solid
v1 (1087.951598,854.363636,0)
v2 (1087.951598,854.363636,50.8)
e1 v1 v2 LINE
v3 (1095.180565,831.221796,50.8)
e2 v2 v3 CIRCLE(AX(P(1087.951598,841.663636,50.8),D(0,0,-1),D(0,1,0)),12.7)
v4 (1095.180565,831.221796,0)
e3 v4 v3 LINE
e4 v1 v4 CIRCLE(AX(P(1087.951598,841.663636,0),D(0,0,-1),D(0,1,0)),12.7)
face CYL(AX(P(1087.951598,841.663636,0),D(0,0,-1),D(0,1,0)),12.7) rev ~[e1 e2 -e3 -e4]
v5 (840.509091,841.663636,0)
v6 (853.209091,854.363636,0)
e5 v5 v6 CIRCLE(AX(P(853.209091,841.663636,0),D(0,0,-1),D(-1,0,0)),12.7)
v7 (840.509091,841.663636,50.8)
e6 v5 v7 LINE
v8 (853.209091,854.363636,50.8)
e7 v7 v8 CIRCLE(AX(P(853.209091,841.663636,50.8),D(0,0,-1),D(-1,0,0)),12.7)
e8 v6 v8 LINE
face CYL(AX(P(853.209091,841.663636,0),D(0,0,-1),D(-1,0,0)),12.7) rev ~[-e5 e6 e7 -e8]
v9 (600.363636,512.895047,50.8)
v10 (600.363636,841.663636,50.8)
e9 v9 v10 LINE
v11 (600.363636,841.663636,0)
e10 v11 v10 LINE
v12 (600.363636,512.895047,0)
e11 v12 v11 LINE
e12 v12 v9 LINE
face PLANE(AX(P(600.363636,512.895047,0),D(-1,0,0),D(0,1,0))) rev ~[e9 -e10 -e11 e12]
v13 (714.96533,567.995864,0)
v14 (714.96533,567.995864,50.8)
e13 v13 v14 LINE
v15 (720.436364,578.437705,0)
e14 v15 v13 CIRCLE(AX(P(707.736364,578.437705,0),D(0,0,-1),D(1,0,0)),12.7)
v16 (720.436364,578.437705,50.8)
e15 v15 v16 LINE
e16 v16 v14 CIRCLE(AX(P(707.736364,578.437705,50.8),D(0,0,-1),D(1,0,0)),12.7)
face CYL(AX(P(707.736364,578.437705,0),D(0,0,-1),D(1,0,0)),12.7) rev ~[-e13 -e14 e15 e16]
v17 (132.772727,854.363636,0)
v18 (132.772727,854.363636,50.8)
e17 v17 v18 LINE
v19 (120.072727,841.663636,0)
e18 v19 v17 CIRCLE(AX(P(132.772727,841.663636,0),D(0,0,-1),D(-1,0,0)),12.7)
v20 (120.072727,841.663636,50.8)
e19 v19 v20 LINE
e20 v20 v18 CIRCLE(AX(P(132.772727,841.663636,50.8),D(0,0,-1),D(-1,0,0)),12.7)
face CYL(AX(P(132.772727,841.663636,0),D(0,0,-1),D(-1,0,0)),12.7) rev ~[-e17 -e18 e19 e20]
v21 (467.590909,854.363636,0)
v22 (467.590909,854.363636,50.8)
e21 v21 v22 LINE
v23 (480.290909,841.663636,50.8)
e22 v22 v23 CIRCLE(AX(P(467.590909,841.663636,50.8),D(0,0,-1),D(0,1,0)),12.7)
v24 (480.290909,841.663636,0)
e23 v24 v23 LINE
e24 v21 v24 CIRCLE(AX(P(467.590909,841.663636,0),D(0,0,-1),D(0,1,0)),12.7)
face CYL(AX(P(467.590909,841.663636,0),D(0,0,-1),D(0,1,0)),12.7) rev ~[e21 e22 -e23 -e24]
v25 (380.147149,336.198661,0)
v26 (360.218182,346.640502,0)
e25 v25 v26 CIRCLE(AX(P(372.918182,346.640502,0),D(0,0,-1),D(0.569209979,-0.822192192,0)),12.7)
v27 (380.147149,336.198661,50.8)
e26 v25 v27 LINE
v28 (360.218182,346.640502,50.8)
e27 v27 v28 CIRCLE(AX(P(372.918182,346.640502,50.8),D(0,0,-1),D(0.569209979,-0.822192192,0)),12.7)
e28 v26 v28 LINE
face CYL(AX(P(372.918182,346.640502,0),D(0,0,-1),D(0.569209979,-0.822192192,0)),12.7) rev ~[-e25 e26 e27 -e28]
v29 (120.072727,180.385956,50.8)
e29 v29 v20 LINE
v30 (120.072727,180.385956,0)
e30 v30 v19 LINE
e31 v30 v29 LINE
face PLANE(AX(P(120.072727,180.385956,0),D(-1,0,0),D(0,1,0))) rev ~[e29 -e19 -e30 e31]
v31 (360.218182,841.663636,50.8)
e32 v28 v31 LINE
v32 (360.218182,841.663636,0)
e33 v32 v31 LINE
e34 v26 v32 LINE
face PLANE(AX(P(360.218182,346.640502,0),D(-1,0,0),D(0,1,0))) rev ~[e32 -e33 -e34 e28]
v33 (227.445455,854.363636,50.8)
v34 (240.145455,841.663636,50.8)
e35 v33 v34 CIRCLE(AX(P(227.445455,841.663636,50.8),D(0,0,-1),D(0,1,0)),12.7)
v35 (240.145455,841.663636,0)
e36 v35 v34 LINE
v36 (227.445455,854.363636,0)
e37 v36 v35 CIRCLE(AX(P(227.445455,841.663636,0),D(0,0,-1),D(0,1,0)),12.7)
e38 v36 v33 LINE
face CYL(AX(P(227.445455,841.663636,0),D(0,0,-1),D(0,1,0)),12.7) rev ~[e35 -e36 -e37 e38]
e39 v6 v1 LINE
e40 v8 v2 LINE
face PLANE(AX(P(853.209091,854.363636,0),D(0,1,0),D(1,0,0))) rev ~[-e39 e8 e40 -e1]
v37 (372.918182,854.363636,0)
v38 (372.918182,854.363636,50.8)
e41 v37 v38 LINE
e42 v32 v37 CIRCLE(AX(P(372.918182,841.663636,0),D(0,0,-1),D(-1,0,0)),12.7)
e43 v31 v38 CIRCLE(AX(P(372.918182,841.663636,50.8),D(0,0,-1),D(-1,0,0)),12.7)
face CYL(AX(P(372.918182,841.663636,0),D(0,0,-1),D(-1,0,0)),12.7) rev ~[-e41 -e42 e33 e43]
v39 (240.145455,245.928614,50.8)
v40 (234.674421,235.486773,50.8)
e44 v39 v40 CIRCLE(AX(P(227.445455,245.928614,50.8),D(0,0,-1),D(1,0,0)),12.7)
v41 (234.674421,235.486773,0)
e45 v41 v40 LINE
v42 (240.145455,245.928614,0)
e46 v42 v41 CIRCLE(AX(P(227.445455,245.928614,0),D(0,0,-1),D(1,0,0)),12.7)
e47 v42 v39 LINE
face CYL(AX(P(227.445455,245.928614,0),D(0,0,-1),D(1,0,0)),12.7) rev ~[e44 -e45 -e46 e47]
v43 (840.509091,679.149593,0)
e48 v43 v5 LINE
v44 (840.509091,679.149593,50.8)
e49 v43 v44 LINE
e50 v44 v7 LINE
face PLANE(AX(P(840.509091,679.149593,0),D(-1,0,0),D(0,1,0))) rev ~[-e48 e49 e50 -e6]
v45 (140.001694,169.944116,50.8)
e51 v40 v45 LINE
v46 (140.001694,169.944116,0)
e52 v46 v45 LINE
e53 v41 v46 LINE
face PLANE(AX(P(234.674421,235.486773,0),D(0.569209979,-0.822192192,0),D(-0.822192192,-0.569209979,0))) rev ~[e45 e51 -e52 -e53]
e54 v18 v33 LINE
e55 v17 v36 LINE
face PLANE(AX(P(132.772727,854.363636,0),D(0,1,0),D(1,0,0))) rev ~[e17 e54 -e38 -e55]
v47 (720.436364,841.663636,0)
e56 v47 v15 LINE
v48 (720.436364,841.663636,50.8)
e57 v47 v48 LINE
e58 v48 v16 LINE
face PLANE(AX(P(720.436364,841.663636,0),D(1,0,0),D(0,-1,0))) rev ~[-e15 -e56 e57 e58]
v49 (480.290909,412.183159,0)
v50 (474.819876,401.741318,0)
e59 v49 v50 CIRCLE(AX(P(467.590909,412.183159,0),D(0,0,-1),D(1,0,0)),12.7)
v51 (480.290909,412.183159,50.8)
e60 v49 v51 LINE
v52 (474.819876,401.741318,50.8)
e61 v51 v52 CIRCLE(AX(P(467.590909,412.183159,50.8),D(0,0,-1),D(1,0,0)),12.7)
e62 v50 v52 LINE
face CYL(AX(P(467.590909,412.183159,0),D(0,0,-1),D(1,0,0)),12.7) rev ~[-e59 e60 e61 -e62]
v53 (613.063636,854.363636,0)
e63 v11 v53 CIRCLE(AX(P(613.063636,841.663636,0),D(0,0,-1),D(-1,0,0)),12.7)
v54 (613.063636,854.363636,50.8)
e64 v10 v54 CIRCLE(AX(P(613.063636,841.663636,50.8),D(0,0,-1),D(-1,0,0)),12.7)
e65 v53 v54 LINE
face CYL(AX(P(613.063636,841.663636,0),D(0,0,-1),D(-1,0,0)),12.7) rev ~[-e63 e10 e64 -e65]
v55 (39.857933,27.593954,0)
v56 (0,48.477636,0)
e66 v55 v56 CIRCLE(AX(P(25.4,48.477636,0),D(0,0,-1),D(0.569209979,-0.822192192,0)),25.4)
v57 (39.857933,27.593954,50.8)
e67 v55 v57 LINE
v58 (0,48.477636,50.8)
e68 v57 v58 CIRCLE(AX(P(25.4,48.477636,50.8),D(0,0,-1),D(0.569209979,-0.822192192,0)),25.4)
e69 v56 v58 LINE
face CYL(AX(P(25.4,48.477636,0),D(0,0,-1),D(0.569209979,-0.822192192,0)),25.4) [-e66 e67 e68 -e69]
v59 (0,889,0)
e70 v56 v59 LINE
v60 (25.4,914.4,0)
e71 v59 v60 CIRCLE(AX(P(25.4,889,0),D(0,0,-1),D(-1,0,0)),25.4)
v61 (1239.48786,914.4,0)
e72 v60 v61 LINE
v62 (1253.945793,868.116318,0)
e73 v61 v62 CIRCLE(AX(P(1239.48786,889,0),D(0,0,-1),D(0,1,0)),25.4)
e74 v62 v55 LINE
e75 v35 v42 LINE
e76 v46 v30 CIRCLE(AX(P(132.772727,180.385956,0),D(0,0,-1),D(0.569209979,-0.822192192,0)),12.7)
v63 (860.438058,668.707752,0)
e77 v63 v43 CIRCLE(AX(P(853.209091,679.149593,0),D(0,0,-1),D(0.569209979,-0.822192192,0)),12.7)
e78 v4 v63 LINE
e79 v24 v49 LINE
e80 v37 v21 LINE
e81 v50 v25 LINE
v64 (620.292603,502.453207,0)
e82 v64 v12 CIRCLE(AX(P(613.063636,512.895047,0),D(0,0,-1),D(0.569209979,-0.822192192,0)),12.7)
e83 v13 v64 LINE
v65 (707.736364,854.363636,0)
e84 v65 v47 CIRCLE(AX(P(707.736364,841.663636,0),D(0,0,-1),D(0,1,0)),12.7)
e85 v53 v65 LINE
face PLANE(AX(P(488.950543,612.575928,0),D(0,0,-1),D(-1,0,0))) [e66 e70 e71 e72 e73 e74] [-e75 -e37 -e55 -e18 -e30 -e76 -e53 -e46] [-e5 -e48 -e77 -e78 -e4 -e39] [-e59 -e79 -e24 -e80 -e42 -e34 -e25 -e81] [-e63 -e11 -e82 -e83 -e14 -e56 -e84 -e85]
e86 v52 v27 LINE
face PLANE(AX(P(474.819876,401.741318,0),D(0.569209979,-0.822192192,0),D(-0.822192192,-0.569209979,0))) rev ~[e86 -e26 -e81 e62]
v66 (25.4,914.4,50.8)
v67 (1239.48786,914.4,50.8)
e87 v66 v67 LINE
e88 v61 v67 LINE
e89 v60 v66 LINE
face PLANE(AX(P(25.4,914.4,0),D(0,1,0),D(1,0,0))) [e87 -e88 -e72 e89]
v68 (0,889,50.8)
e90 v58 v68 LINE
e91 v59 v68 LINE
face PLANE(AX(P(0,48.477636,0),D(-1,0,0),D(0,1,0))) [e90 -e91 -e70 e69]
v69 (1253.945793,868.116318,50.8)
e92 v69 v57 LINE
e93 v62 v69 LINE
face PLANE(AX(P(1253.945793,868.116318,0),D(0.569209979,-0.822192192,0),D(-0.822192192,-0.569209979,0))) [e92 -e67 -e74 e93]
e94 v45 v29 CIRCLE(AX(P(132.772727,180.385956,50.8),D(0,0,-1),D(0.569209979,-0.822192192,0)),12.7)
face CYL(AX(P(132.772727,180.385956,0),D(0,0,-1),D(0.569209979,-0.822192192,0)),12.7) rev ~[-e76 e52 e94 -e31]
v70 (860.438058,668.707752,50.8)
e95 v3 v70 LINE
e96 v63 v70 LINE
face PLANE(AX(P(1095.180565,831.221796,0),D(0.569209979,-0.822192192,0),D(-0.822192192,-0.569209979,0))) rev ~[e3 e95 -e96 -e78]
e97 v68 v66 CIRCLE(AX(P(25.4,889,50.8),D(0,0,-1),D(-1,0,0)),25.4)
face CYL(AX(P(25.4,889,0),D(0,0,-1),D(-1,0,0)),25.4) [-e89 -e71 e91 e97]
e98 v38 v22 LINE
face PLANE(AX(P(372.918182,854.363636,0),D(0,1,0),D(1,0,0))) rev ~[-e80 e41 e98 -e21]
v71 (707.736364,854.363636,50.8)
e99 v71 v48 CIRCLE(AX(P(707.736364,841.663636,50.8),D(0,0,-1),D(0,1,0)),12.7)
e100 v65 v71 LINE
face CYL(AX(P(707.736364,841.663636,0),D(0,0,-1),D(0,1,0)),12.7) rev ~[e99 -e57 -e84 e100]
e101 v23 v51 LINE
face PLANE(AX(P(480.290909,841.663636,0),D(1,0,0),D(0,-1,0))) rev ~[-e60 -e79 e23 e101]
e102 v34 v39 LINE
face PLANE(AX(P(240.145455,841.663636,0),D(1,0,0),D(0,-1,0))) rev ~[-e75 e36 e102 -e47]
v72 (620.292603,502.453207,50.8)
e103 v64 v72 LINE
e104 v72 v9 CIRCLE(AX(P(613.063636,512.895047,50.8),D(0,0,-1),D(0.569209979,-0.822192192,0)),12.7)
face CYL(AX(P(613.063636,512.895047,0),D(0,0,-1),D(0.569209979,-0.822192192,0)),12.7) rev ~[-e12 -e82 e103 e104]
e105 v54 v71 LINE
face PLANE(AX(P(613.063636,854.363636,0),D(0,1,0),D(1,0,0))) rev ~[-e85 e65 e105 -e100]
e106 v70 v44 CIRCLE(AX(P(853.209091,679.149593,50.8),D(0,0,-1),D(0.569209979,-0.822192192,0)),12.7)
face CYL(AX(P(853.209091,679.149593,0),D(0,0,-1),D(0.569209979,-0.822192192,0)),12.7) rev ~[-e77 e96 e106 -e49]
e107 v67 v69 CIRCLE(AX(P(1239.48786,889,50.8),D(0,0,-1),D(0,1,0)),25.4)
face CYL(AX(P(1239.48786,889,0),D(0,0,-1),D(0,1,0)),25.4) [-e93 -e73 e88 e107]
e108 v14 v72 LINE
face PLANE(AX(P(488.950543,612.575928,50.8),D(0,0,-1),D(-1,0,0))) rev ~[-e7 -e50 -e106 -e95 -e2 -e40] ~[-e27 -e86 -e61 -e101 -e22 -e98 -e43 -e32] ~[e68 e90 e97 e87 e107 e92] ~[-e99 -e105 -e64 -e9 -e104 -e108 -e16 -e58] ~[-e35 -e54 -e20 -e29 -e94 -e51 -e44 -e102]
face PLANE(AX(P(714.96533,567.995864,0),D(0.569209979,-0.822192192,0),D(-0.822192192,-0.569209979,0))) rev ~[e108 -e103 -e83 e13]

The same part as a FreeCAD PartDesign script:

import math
import FreeCAD as App
import Part
import Sketcher
from FreeCAD import Vector
Q = App.Units.Quantity

doc = App.newDocument("Part")
body = doc.addObject("PartDesign::Body", "Body")

# Sketch on XY plane
sketch1 = body.newObject("Sketcher::SketchObject", "Sketch")
sketch1.AttachmentSupport = (doc.getObject("XY_Plane"), [""])
sketch1.MapMode = "FlatFace"
sketch1.addGeometry(Part.LineSegment(Vector(0, 889, 0), Vector(0, 48.477636, 0)), False)
sketch1.addGeometry(Part.ArcOfCircle(Part.Circle(Vector(25.4, 48.477636, 0), Vector(0, 0, 1), 25.4), math.radians(-180), math.radians(-55.304846)), False)
sketch1.addGeometry(Part.LineSegment(Vector(39.857933, 27.593954, 0), Vector(1253.945793, 868.116318, 0)), False)
sketch1.addGeometry(Part.ArcOfCircle(Part.Circle(Vector(1239.48786, 889, 0), Vector(0, 0, 1), 25.4), math.radians(-55.304846), math.radians(90)), False)
sketch1.addGeometry(Part.LineSegment(Vector(1239.48786, 914.4, 0), Vector(25.4, 914.4, 0)), False)
sketch1.addGeometry(Part.ArcOfCircle(Part.Circle(Vector(25.4, 889, 0), Vector(0, 0, 1), 25.4), math.radians(90), math.radians(180)), False)
sketch1.addGeometry(Part.LineSegment(Vector(600.363636, 512.895047, 0), Vector(600.363636, 841.663636, 0)), False)
sketch1.addGeometry(Part.ArcOfCircle(Part.Circle(Vector(613.063636, 841.663636, 0), Vector(0, 0, 1), 12.7), math.radians(90), math.radians(180)), False)
sketch1.addGeometry(Part.LineSegment(Vector(613.063636, 854.363636, 0), Vector(707.736364, 854.363636, 0)), False)
sketch1.addGeometry(Part.ArcOfCircle(Part.Circle(Vector(707.736364, 841.663636, 0), Vector(0, 0, 1), 12.7), math.radians(0), math.radians(90)), False)
sketch1.addGeometry(Part.LineSegment(Vector(720.436364, 841.663636, 0), Vector(720.436364, 578.437705, 0)), False)
sketch1.addGeometry(Part.ArcOfCircle(Part.Circle(Vector(707.736364, 578.437705, 0), Vector(0, 0, 1), 12.7), math.radians(-55.304846), math.radians(0)), False)
sketch1.addGeometry(Part.LineSegment(Vector(714.96533, 567.995864, 0), Vector(620.292603, 502.453207, 0)), False)
sketch1.addGeometry(Part.ArcOfCircle(Part.Circle(Vector(613.063636, 512.895047, 0), Vector(0, 0, 1), 12.7), math.radians(180), math.radians(304.695154)), False)
sketch1.addGeometry(Part.LineSegment(Vector(840.509091, 679.149593, 0), Vector(840.509091, 841.663636, 0)), False)
sketch1.addGeometry(Part.ArcOfCircle(Part.Circle(Vector(853.209091, 841.663636, 0), Vector(0, 0, 1), 12.7), math.radians(90), math.radians(180)), False)
sketch1.addGeometry(Part.LineSegment(Vector(853.209091, 854.363636, 0), Vector(1087.951598, 854.363636, 0)), False)
sketch1.addGeometry(Part.ArcOfCircle(Part.Circle(Vector(1087.951598, 841.663636, 0), Vector(0, 0, 1), 12.7), math.radians(-55.304846), math.radians(90)), False)
sketch1.addGeometry(Part.LineSegment(Vector(1095.180565, 831.221796, 0), Vector(860.438058, 668.707752, 0)), False)
sketch1.addGeometry(Part.ArcOfCircle(Part.Circle(Vector(853.209091, 679.149593, 0), Vector(0, 0, 1), 12.7), math.radians(180), math.radians(304.695154)), False)
sketch1.addGeometry(Part.LineSegment(Vector(360.218182, 346.640502, 0), Vector(360.218182, 841.663636, 0)), False)
sketch1.addGeometry(Part.ArcOfCircle(Part.Circle(Vector(372.918182, 841.663636, 0), Vector(0, 0, 1), 12.7), math.radians(90), math.radians(180)), False)
sketch1.addGeometry(Part.LineSegment(Vector(372.918182, 854.363636, 0), Vector(467.590909, 854.363636, 0)), False)
sketch1.addGeometry(Part.ArcOfCircle(Part.Circle(Vector(467.590909, 841.663636, 0), Vector(0, 0, 1), 12.7), math.radians(0), math.radians(90)), False)
sketch1.addGeometry(Part.LineSegment(Vector(480.290909, 841.663636, 0), Vector(480.290909, 412.183159, 0)), False)
sketch1.addGeometry(Part.ArcOfCircle(Part.Circle(Vector(467.590909, 412.183159, 0), Vector(0, 0, 1), 12.7), math.radians(-55.304846), math.radians(0)), False)
sketch1.addGeometry(Part.LineSegment(Vector(474.819876, 401.741318, 0), Vector(380.147149, 336.198661, 0)), False)
sketch1.addGeometry(Part.ArcOfCircle(Part.Circle(Vector(372.918182, 346.640502, 0), Vector(0, 0, 1), 12.7), math.radians(180), math.radians(304.695154)), False)
sketch1.addGeometry(Part.LineSegment(Vector(120.072727, 180.385956, 0), Vector(120.072727, 841.663636, 0)), False)
sketch1.addGeometry(Part.ArcOfCircle(Part.Circle(Vector(132.772727, 841.663636, 0), Vector(0, 0, 1), 12.7), math.radians(90), math.radians(180)), False)
sketch1.addGeometry(Part.LineSegment(Vector(132.772727, 854.363636, 0), Vector(227.445455, 854.363636, 0)), False)
sketch1.addGeometry(Part.ArcOfCircle(Part.Circle(Vector(227.445455, 841.663636, 0), Vector(0, 0, 1), 12.7), math.radians(0), math.radians(90)), False)
sketch1.addGeometry(Part.LineSegment(Vector(240.145455, 841.663636, 0), Vector(240.145455, 245.928614, 0)), False)
sketch1.addGeometry(Part.ArcOfCircle(Part.Circle(Vector(227.445455, 245.928614, 0), Vector(0, 0, 1), 12.7), math.radians(-55.304846), math.radians(0)), False)
sketch1.addGeometry(Part.LineSegment(Vector(234.674421, 235.486773, 0), Vector(140.001694, 169.944116, 0)), False)
sketch1.addGeometry(Part.ArcOfCircle(Part.Circle(Vector(132.772727, 180.385956, 0), Vector(0, 0, 1), 12.7), math.radians(180), math.radians(304.695154)), False)
sketch1.addConstraint(Sketcher.Constraint("Tangent", 0, 2, 1, 1))
sketch1.addConstraint(Sketcher.Constraint("Tangent", 1, 2, 2, 1))
sketch1.addConstraint(Sketcher.Constraint("Tangent", 2, 2, 3, 1))
sketch1.addConstraint(Sketcher.Constraint("Tangent", 3, 2, 4, 1))
sketch1.addConstraint(Sketcher.Constraint("Tangent", 4, 2, 5, 1))
sketch1.addConstraint(Sketcher.Constraint("Tangent", 5, 2, 0, 1))
sketch1.addConstraint(Sketcher.Constraint("Tangent", 6, 2, 7, 2))
sketch1.addConstraint(Sketcher.Constraint("Tangent", 7, 1, 8, 1))
sketch1.addConstraint(Sketcher.Constraint("Tangent", 8, 2, 9, 2))
sketch1.addConstraint(Sketcher.Constraint("Tangent", 9, 1, 10, 1))
sketch1.addConstraint(Sketcher.Constraint("Tangent", 10, 2, 11, 2))
sketch1.addConstraint(Sketcher.Constraint("Tangent", 11, 1, 12, 1))
sketch1.addConstraint(Sketcher.Constraint("Tangent", 12, 2, 13, 2))
sketch1.addConstraint(Sketcher.Constraint("Tangent", 13, 1, 6, 1))
sketch1.addConstraint(Sketcher.Constraint("Tangent", 14, 2, 15, 2))
sketch1.addConstraint(Sketcher.Constraint("Tangent", 15, 1, 16, 1))
sketch1.addConstraint(Sketcher.Constraint("Tangent", 16, 2, 17, 2))
sketch1.addConstraint(Sketcher.Constraint("Tangent", 17, 1, 18, 1))
sketch1.addConstraint(Sketcher.Constraint("Tangent", 18, 2, 19, 2))
sketch1.addConstraint(Sketcher.Constraint("Tangent", 19, 1, 14, 1))
sketch1.addConstraint(Sketcher.Constraint("Tangent", 20, 2, 21, 2))
sketch1.addConstraint(Sketcher.Constraint("Tangent", 21, 1, 22, 1))
sketch1.addConstraint(Sketcher.Constraint("Tangent", 22, 2, 23, 2))
sketch1.addConstraint(Sketcher.Constraint("Tangent", 23, 1, 24, 1))
sketch1.addConstraint(Sketcher.Constraint("Tangent", 24, 2, 25, 2))
sketch1.addConstraint(Sketcher.Constraint("Tangent", 25, 1, 26, 1))
sketch1.addConstraint(Sketcher.Constraint("Tangent", 26, 2, 27, 2))
sketch1.addConstraint(Sketcher.Constraint("Tangent", 27, 1, 20, 1))
sketch1.addConstraint(Sketcher.Constraint("Tangent", 28, 2, 29, 2))
sketch1.addConstraint(Sketcher.Constraint("Tangent", 29, 1, 30, 1))
sketch1.addConstraint(Sketcher.Constraint("Tangent", 30, 2, 31, 2))
sketch1.addConstraint(Sketcher.Constraint("Tangent", 31, 1, 32, 1))
sketch1.addConstraint(Sketcher.Constraint("Tangent", 32, 2, 33, 2))
sketch1.addConstraint(Sketcher.Constraint("Tangent", 33, 1, 34, 1))
sketch1.addConstraint(Sketcher.Constraint("Tangent", 34, 2, 35, 2))
sketch1.addConstraint(Sketcher.Constraint("Tangent", 35, 1, 28, 1))
sketch1.addConstraint(Sketcher.Constraint("Vertical", 0))
sketch1.addConstraint(Sketcher.Constraint("Horizontal", 4))
sketch1.addConstraint(Sketcher.Constraint("Vertical", 6))
sketch1.addConstraint(Sketcher.Constraint("Horizontal", 8))
sketch1.addConstraint(Sketcher.Constraint("Vertical", 10))
sketch1.addConstraint(Sketcher.Constraint("Vertical", 14))
sketch1.addConstraint(Sketcher.Constraint("Horizontal", 16))
sketch1.addConstraint(Sketcher.Constraint("Vertical", 20))
sketch1.addConstraint(Sketcher.Constraint("Horizontal", 22))
sketch1.addConstraint(Sketcher.Constraint("Vertical", 24))
sketch1.addConstraint(Sketcher.Constraint("Vertical", 28))
sketch1.addConstraint(Sketcher.Constraint("Horizontal", 30))
sketch1.addConstraint(Sketcher.Constraint("Vertical", 32))
sketch1.addConstraint(Sketcher.Constraint("Equal", 1, 3))
sketch1.addConstraint(Sketcher.Constraint("Equal", 3, 5))
sketch1.addConstraint(Sketcher.Constraint("Equal", 7, 9))
sketch1.addConstraint(Sketcher.Constraint("Equal", 9, 11))
sketch1.addConstraint(Sketcher.Constraint("Equal", 11, 13))
sketch1.addConstraint(Sketcher.Constraint("Equal", 13, 15))
sketch1.addConstraint(Sketcher.Constraint("Equal", 15, 17))
sketch1.addConstraint(Sketcher.Constraint("Equal", 17, 19))
sketch1.addConstraint(Sketcher.Constraint("Equal", 19, 21))
sketch1.addConstraint(Sketcher.Constraint("Equal", 21, 23))
sketch1.addConstraint(Sketcher.Constraint("Equal", 23, 25))
sketch1.addConstraint(Sketcher.Constraint("Equal", 25, 27))
sketch1.addConstraint(Sketcher.Constraint("Equal", 27, 29))
sketch1.addConstraint(Sketcher.Constraint("Equal", 29, 31))
sketch1.addConstraint(Sketcher.Constraint("Equal", 31, 33))
sketch1.addConstraint(Sketcher.Constraint("Equal", 33, 35))
sketch1.addConstraint(Sketcher.Constraint("PointOnObject", 0, 2, -2))
sketch1.addConstraint(Sketcher.Constraint("Parallel", 2, 12))
sketch1.addConstraint(Sketcher.Constraint("Parallel", 12, 18))
sketch1.addConstraint(Sketcher.Constraint("Parallel", 18, 26))
sketch1.addConstraint(Sketcher.Constraint("Parallel", 26, 34))
sketch1.addConstraint(Sketcher.Constraint("Horizontal", 9, 3, 15, 3))
sketch1.addConstraint(Sketcher.Constraint("Horizontal", 17, 3, 21, 3))
sketch1.addConstraint(Sketcher.Constraint("Horizontal", 23, 3, 29, 3))
sketch1.addConstraint(Sketcher.Constraint("Equal", 8, 22))
sketch1.addConstraint(Sketcher.Constraint("Equal", 22, 30))
sketch1.addConstraint(Sketcher.Constraint("Radius", 1, Q("1 in")))
sketch1.addConstraint(Sketcher.Constraint("Radius", 7, Q("0.5 in")))
sketch1.addConstraint(Sketcher.Constraint("DistanceY", -1, 1, 3, 3, Q("35 in")))
sketch1.addConstraint(Sketcher.Constraint("DistanceX", 4, 2, 4, 1, 1214.08786))
sketch1.addConstraint(Sketcher.Constraint("DistanceY", 6, 1, 6, 2, 328.768589))
sketch1.addConstraint(Sketcher.Constraint("DistanceY", 10, 2, 10, 1, 263.225932))
sketch1.addConstraint(Sketcher.Constraint("DistanceY", 28, 1, 28, 2, 661.27768))
sketch1.addConstraint(Sketcher.Constraint("DistanceX", -1, 1, 17, 3, 1087.951598))
sketch1.addConstraint(Sketcher.Constraint("DistanceY", -1, 1, 27, 3, 346.640502))
sketch1.addConstraint(Sketcher.Constraint("DistanceY", 1, 3, 7, 3, 793.186001))
sketch1.addConstraint(Sketcher.Constraint("Distance", 12, 115.146712))
sketch1.addConstraint(Sketcher.Constraint("Distance", 18, 285.508072))
sketch1.addConstraint(Sketcher.Constraint("DistanceX", -1, 1, 21, 3, 372.918182))
sketch1.addConstraint(Sketcher.Constraint("DistanceX", -1, 1, 11, 1, 714.96533))
sketch1.addConstraint(Sketcher.Constraint("DistanceX", -1, 1, 33, 1, 234.674421))
pad1 = body.newObject("PartDesign::Pad", "Pad")
pad1.Profile = sketch1
pad1.Length = Q("2 in")

doc.recompute()
